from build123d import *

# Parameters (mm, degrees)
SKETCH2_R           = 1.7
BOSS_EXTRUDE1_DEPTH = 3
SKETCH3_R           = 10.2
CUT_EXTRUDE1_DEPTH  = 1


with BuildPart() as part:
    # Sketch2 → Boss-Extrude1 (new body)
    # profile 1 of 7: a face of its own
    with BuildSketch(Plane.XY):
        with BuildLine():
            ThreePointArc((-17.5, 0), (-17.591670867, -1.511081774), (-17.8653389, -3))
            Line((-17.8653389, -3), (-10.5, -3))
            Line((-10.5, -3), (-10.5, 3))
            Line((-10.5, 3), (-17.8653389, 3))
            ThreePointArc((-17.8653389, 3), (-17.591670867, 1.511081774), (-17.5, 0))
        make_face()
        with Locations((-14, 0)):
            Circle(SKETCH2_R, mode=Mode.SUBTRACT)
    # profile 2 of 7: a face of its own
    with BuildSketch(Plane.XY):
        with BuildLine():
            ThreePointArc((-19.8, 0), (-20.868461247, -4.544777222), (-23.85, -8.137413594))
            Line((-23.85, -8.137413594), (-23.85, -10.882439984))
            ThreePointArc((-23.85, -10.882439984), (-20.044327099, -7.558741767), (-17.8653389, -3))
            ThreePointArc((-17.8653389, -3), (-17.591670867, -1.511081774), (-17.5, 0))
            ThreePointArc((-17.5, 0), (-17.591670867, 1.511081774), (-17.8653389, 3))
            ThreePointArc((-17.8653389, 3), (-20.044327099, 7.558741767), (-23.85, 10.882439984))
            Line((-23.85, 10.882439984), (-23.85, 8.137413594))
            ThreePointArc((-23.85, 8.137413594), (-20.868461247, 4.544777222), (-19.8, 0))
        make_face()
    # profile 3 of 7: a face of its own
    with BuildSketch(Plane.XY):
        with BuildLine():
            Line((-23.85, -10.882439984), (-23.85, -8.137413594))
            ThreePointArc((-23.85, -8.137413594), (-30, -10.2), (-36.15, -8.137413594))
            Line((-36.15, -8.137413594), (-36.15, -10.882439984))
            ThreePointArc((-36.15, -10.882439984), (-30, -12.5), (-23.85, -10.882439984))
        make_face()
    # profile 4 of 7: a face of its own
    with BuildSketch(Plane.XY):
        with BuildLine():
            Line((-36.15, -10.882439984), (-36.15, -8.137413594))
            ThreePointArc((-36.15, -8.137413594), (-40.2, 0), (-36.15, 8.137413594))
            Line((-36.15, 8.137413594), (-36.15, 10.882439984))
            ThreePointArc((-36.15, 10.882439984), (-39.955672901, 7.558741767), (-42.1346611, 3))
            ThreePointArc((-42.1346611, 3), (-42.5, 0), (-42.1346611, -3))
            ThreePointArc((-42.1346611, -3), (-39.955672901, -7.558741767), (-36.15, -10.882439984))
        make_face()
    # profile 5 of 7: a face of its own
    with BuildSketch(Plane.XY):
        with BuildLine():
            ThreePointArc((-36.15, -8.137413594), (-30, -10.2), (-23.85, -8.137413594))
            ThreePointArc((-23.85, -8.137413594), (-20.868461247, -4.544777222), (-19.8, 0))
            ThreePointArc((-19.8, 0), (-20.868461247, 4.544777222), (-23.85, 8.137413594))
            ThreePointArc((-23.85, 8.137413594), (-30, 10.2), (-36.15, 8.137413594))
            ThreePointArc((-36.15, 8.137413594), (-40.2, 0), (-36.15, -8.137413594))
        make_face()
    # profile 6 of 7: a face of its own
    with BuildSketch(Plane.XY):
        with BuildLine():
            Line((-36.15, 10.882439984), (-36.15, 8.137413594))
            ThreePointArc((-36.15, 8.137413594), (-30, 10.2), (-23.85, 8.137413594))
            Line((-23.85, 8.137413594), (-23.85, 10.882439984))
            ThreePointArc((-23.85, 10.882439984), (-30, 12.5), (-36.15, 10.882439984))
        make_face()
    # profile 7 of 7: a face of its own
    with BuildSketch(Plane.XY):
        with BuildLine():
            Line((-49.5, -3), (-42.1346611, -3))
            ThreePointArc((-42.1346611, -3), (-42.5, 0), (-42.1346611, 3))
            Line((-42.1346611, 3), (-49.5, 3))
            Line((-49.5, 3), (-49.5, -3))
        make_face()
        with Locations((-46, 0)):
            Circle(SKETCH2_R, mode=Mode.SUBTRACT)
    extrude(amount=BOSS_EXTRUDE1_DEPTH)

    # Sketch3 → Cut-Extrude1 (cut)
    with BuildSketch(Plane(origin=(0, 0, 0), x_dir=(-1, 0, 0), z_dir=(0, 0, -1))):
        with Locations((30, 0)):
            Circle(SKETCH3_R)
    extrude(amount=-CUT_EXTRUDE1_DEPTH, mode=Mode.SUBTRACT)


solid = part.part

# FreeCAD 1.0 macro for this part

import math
import FreeCAD as App
import Part
import Sketcher

doc = App.newDocument("Part")
body = doc.addObject("PartDesign::Body", "Body")

sketch1 = body.newObject("Sketcher::SketchObject", "Sketch")
sketch1.AttachmentSupport = (doc.getObject("XY_Plane"), [""])
sketch1.MapMode = "FlatFace"
sketch1.addGeometry(Part.LineSegment(App.Vector(-17.865339, -3, 0), App.Vector(-10.5, -3, 0)), False)
sketch1.addGeometry(Part.LineSegment(App.Vector(-10.5, -3, 0), App.Vector(-10.5, 3, 0)), False)
sketch1.addGeometry(Part.LineSegment(App.Vector(-10.5, 3, 0), App.Vector(-17.865339, 3, 0)), False)
sketch1.addGeometry(Part.ArcOfCircle(Part.Circle(App.Vector(-30, 0, 0), App.Vector(0, 0, 1), 12.5), math.radians(13.88654), math.radians(60.527879)), False)
sketch1.addGeometry(Part.ArcOfCircle(Part.Circle(App.Vector(-30, 0, 0), App.Vector(0, 0, 1), 12.5), math.radians(60.527879), math.radians(119.472121)), False)
sketch1.addGeometry(Part.ArcOfCircle(Part.Circle(App.Vector(-30, 0, 0), App.Vector(0, 0, 1), 12.5), math.radians(119.472121), math.radians(166.11346)), False)
sketch1.addGeometry(Part.LineSegment(App.Vector(-42.134661, 3, 0), App.Vector(-49.5, 3, 0)), False)
sketch1.addGeometry(Part.LineSegment(App.Vector(-49.5, 3, 0), App.Vector(-49.5, -3, 0)), False)
sketch1.addGeometry(Part.LineSegment(App.Vector(-49.5, -3, 0), App.Vector(-42.134661, -3, 0)), False)
sketch1.addGeometry(Part.ArcOfCircle(Part.Circle(App.Vector(-30, 0, 0), App.Vector(0, 0, 1), 12.5), math.radians(-166.11346), math.radians(-119.472121)), False)
sketch1.addGeometry(Part.ArcOfCircle(Part.Circle(App.Vector(-30, 0, 0), App.Vector(0, 0, 1), 12.5), math.radians(-119.472121), math.radians(-60.527879)), False)
sketch1.addGeometry(Part.ArcOfCircle(Part.Circle(App.Vector(-30, 0, 0), App.Vector(0, 0, 1), 12.5), math.radians(-60.527879), math.radians(-13.88654)), False)
sketch1.addGeometry(Part.Circle(App.Vector(-14, 0, 0), App.Vector(0, 0, 1), 1.7), False)
sketch1.addGeometry(Part.Circle(App.Vector(-46, 0, 0), App.Vector(0, 0, 1), 1.7), False)
sketch1.addConstraint(Sketcher.Constraint("Coincident", 0, 2, 1, 1))
sketch1.addConstraint(Sketcher.Constraint("Coincident", 1, 2, 2, 1))
sketch1.addConstraint(Sketcher.Constraint("Coincident", 2, 2, 3, 1))
sketch1.addConstraint(Sketcher.Constraint("Tangent", 3, 2, 4, 1))
sketch1.addConstraint(Sketcher.Constraint("Tangent", 4, 2, 5, 1))
sketch1.addConstraint(Sketcher.Constraint("Coincident", 5, 2, 6, 1))
sketch1.addConstraint(Sketcher.Constraint("Coincident", 6, 2, 7, 1))
sketch1.addConstraint(Sketcher.Constraint("Coincident", 7, 2, 8, 1))
sketch1.addConstraint(Sketcher.Constraint("Coincident", 8, 2, 9, 1))
sketch1.addConstraint(Sketcher.Constraint("Tangent", 9, 2, 10, 1))
sketch1.addConstraint(Sketcher.Constraint("Tangent", 10, 2, 11, 1))
sketch1.addConstraint(Sketcher.Constraint("Coincident", 11, 2, 0, 1))
sketch1.addConstraint(Sketcher.Constraint("Horizontal", 0))
sketch1.addConstraint(Sketcher.Constraint("Vertical", 1))
sketch1.addConstraint(Sketcher.Constraint("Horizontal", 2))
sketch1.addConstraint(Sketcher.Constraint("Horizontal", 6))
sketch1.addConstraint(Sketcher.Constraint("Vertical", 7))
sketch1.addConstraint(Sketcher.Constraint("Horizontal", 8))
sketch1.addConstraint(Sketcher.Constraint("Coincident", 5, 3, 3, 3))
sketch1.addConstraint(Sketcher.Constraint("Coincident", 9, 3, 3, 3))
sketch1.addConstraint(Sketcher.Constraint("Coincident", 11, 3, 3, 3))
sketch1.addConstraint(Sketcher.Constraint("Equal", 5, 9))
sketch1.addConstraint(Sketcher.Constraint("Equal", 12, 13))
sketch1.addConstraint(Sketcher.Constraint("Symmetric", 5, 2, 8, 2, -1))
sketch1.addConstraint(Sketcher.Constraint("PointOnObject", 12, 3, -1))
sketch1.addConstraint(Sketcher.Constraint("PointOnObject", 13, 3, -1))
sketch1.addConstraint(Sketcher.Constraint("Horizontal", 3, 2, 4, 2))
sketch1.addConstraint(Sketcher.Constraint("Horizontal", 2, 2, 5, 2))
sketch1.addConstraint(Sketcher.Constraint("Horizontal", 0, 2, 7, 2))
sketch1.addConstraint(Sketcher.Constraint("Horizontal", 9, 2, 10, 2))
sketch1.addConstraint(Sketcher.Constraint("Vertical", 4, 2, 9, 2))
sketch1.addConstraint(Sketcher.Constraint("Equal", 2, 6))
sketch1.addConstraint(Sketcher.Constraint("Diameter", 12, 3.4))
sketch1.addConstraint(Sketcher.Constraint("Radius", 3, 12.5))
sketch1.addConstraint(Sketcher.Constraint("DistanceY", 1, 1, 1, 2, 6.0))
sketch1.addConstraint(Sketcher.Constraint("DistanceX", 3, 3, -1, 1, 30.0))
sketch1.addConstraint(Sketcher.Constraint("DistanceX", 12, 3, -1, 1, 14.0))
sketch1.addConstraint(Sketcher.Constraint("DistanceX", 13, 3, -1, 1, 46.0))
sketch1.addConstraint(Sketcher.Constraint("DistanceX", 0, 2, -1, 1, 10.5))
sketch1.addConstraint(Sketcher.Constraint("DistanceX", 4, 2, 3, 2, 12.3))
pad1 = body.newObject("PartDesign::Pad", "Pad")
pad1.Profile = sketch1
pad1.Length = 3

sketch2 = body.newObject("Sketcher::SketchObject", "Sketch001")
sketch2.AttachmentSupport = (doc.getObject("XY_Plane"), [""])
sketch2.MapMode = "FlatFace"
sketch2.addGeometry(Part.Circle(App.Vector(-30, 0, 0), App.Vector(0, 0, 1), 10.2), False)
sketch2.addConstraint(Sketcher.Constraint("PointOnObject", 0, 3, -1))
sketch2.addConstraint(Sketcher.Constraint("Diameter", 0, 20.4))
sketch2.addConstraint(Sketcher.Constraint("DistanceX", 0, 3, -1, 1, 30.0))
pocket1 = body.newObject("PartDesign::Pocket", "Pocket")
pocket1.Profile = sketch2
pocket1.Length = 1
pocket1.Reversed = True

doc.recompute()
